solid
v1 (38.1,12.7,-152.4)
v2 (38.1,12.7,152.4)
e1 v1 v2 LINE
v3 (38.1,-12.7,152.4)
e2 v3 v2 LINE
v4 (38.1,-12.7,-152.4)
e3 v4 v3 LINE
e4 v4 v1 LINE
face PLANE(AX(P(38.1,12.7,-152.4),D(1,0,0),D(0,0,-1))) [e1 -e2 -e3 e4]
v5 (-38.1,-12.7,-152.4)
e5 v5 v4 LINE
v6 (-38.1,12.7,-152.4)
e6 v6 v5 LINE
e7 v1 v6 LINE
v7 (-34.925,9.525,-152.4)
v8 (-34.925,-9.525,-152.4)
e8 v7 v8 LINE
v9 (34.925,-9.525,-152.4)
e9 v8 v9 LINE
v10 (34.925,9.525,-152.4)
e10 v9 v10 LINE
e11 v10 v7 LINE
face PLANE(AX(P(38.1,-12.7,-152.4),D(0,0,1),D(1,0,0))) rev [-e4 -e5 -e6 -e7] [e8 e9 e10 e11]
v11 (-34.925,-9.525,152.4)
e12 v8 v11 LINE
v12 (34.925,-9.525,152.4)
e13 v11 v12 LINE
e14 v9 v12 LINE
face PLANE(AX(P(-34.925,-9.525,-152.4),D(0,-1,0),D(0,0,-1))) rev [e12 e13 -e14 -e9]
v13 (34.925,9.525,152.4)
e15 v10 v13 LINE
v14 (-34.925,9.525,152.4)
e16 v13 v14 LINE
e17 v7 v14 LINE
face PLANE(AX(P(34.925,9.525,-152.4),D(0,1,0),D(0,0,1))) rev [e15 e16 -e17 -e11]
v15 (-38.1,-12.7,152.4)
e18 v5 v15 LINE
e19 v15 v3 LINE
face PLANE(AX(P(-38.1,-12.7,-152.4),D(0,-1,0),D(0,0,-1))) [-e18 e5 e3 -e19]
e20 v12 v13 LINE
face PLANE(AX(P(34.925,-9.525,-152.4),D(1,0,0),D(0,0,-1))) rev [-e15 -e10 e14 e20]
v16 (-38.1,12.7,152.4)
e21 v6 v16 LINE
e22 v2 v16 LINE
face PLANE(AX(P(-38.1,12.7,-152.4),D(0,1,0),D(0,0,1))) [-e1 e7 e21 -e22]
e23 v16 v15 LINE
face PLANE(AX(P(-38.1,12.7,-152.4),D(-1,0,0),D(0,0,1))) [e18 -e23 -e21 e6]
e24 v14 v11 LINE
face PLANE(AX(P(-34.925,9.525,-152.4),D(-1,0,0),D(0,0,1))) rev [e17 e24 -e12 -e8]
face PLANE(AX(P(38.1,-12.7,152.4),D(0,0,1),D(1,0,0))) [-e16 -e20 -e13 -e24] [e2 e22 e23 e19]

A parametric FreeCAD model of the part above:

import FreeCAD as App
import Part
import Sketcher
Q = App.Units.Quantity


def add_polygon(sketch, points):
    """Adds a closed chain of lines whose ends are joined by coincident constraints."""
    first, n = sketch.GeometryCount, len(points)
    for a, b in zip(points, points[1:] + points[:1]):
        sketch.addGeometry(Part.LineSegment(App.Vector(*a, 0), App.Vector(*b, 0)), False)
    for i in range(n):
        sketch.addConstraint(Sketcher.Constraint("Coincident", first + i, 2, first + (i + 1) % n, 1))

doc = App.newDocument("Part")
body = doc.addObject("PartDesign::Body", "Body")

# Sketch on XY plane
sketch1 = body.newObject("Sketcher::SketchObject", "Sketch")
sketch1.AttachmentSupport = (doc.getObject("XY_Plane"), [""])
sketch1.MapMode = "FlatFace"
add_polygon(sketch1, [(-38, 13), (-38, -13), (38, -13), (38, 13)])  # lines 0-3
sketch1.addConstraint([
    Sketcher.Constraint("Vertical", 0),
    Sketcher.Constraint("Horizontal", 1),
    Sketcher.Constraint("Vertical", 2),
    Sketcher.Constraint("Horizontal", 3),
    Sketcher.Constraint("Symmetric", 0, 2, 2, 2, -1, 1),
    Sketcher.Constraint("DistanceX", 1, 1, 1, 2, Q("3 in")),
    Sketcher.Constraint("DistanceY", 0, 2, 0, 1, Q("1 in")),
])
pad1 = body.newObject("PartDesign::Pad", "Pad")
pad1.Profile = sketch1
pad1.Length = Q("12 in")
pad1.Midplane = True

# Sketch on XY plane
sketch2 = body.newObject("Sketcher::SketchObject", "Sketch001")
sketch2.AttachmentSupport = (doc.getObject("XY_Plane"), [""])
sketch2.MapMode = "FlatFace"
sketch2.AttachmentOffset = App.Placement(App.Vector(0, 0, 6 * 25.4), App.Rotation())
add_polygon(sketch2, [(-35, 10), (-35, -10), (35, -10), (35, 10)])  # lines 0-3
sketch2.addConstraint([
    Sketcher.Constraint("Vertical", 0),
    Sketcher.Constraint("Horizontal", 1),
    Sketcher.Constraint("Vertical", 2),
    Sketcher.Constraint("Horizontal", 3),
    Sketcher.Constraint("Symmetric", 0, 2, 2, 2, -1, 1),
    Sketcher.Constraint("DistanceX", 1, 1, 1, 2, Q("2.75 in")),
    Sketcher.Constraint("DistanceY", 0, 2, 0, 1, Q("0.75 in")),
])
pocket1 = body.newObject("PartDesign::Pocket", "Pocket")
pocket1.Profile = sketch2
pocket1.Type = "ThroughAll"

doc.recompute()
